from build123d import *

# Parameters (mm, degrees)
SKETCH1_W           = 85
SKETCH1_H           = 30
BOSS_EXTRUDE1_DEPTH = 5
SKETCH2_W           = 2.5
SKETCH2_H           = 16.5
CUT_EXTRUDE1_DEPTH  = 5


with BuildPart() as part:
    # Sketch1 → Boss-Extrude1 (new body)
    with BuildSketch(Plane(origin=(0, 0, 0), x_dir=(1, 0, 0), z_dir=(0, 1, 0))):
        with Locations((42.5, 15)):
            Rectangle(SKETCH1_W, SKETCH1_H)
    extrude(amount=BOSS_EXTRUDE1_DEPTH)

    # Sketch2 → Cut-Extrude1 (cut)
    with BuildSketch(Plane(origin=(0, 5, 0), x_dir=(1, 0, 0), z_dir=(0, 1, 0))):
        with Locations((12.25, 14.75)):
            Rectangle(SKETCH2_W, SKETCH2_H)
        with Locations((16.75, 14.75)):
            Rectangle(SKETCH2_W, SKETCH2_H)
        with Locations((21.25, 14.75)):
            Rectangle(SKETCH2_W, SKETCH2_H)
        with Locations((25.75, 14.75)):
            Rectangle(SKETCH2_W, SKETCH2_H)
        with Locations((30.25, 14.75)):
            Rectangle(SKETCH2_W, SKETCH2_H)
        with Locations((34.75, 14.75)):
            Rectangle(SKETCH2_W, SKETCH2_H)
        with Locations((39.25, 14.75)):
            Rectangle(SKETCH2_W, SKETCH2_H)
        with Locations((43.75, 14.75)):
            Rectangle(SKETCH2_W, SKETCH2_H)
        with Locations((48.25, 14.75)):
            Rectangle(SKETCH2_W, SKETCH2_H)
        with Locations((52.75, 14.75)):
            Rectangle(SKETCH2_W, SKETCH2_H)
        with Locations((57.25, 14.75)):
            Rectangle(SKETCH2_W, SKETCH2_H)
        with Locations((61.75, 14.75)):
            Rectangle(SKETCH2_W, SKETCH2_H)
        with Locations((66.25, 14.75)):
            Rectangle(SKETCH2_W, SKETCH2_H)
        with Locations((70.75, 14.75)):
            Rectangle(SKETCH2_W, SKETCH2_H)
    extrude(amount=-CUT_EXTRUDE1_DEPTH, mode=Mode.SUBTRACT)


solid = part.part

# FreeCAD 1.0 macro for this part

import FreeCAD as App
import Part
import Sketcher
Q = App.Units.Quantity

doc = App.newDocument("Part")
params = doc.addObject("Spreadsheet::Sheet", "Params")
for row, (alias, value) in enumerate([
    ("sketch1_width", "85 mm"),
    ("sketch1_height", "30 mm"),
    ("pad1_length", "5 mm"),
    ("sketch2_width", "2.5 mm"),
    ("sketch2_height", "16.5 mm"),
    ("pocket1_length", "5 mm"),
], start=1):
    params.set(f"A{row}", alias)
    params.set(f"B{row}", "=" + value)
    params.setAlias(f"B{row}", alias)

body = doc.addObject("PartDesign::Body", "Body")

sketch1 = body.newObject("Sketcher::SketchObject", "Sketch")
sketch1.AttachmentSupport = (doc.getObject("XZ_Plane"), [""])
sketch1.MapMode = "FlatFace"
sketch1.addGeometry(Part.LineSegment(App.Vector(0, -30, 0), App.Vector(0, 0, 0)), False)
sketch1.addGeometry(Part.LineSegment(App.Vector(0, 0, 0), App.Vector(85, 0, 0)), False)
sketch1.addGeometry(Part.LineSegment(App.Vector(85, 0, 0), App.Vector(85, -30, 0)), False)
sketch1.addGeometry(Part.LineSegment(App.Vector(85, -30, 0), App.Vector(0, -30, 0)), False)
sketch1.addConstraint(Sketcher.Constraint("Coincident", 0, 2, 1, 1))
sketch1.addConstraint(Sketcher.Constraint("Coincident", 1, 2, 2, 1))
sketch1.addConstraint(Sketcher.Constraint("Coincident", 2, 2, 3, 1))
sketch1.addConstraint(Sketcher.Constraint("Coincident", 3, 2, 0, 1))
sketch1.addConstraint(Sketcher.Constraint("Vertical", 0))
sketch1.addConstraint(Sketcher.Constraint("Horizontal", 1))
sketch1.addConstraint(Sketcher.Constraint("Vertical", 2))
sketch1.addConstraint(Sketcher.Constraint("Horizontal", 3))
sketch1.addConstraint(Sketcher.Constraint("Coincident", 0, 2, -1, 1))
sketch1.addConstraint(Sketcher.Constraint("DistanceX", 1, 1, 1, 2, Q("85 mm")))
sketch1.addConstraint(Sketcher.Constraint("DistanceY", 0, 1, 0, 2, Q("30 mm")))
sketch1.setExpression("Constraints[9]", "Params.sketch1_width")
sketch1.setExpression("Constraints[10]", "Params.sketch1_height")
pad1 = body.newObject("PartDesign::Pad", "Pad")
pad1.Profile = sketch1
pad1.setExpression("Length", "Params.pad1_length")
pad1.Reversed = True

sketch2 = body.newObject("Sketcher::SketchObject", "Sketch001")
sketch2.AttachmentSupport = (doc.getObject("XZ_Plane"), [""])
sketch2.MapMode = "FlatFace"
sketch2.AttachmentOffset = App.Placement(App.Vector(0, 0, -5), App.Rotation())
sketch2.addGeometry(Part.LineSegment(App.Vector(11, -23, 0), App.Vector(11, -6.5, 0)), False)
sketch2.addGeometry(Part.LineSegment(App.Vector(11, -6.5, 0), App.Vector(13.5, -6.5, 0)), False)
sketch2.addGeometry(Part.LineSegment(App.Vector(13.5, -6.5, 0), App.Vector(13.5, -23, 0)), False)
sketch2.addGeometry(Part.LineSegment(App.Vector(13.5, -23, 0), App.Vector(11, -23, 0)), False)
sketch2.addGeometry(Part.LineSegment(App.Vector(15.5, -23, 0), App.Vector(15.5, -6.5, 0)), False)
sketch2.addGeometry(Part.LineSegment(App.Vector(15.5, -6.5, 0), App.Vector(18, -6.5, 0)), False)
sketch2.addGeometry(Part.LineSegment(App.Vector(18, -6.5, 0), App.Vector(18, -23, 0)), False)
sketch2.addGeometry(Part.LineSegment(App.Vector(18, -23, 0), App.Vector(15.5, -23, 0)), False)
sketch2.addGeometry(Part.LineSegment(App.Vector(20, -23, 0), App.Vector(20, -6.5, 0)), False)
sketch2.addGeometry(Part.LineSegment(App.Vector(20, -6.5, 0), App.Vector(22.5, -6.5, 0)), False)
sketch2.addGeometry(Part.LineSegment(App.Vector(22.5, -6.5, 0), App.Vector(22.5, -23, 0)), False)
sketch2.addGeometry(Part.LineSegment(App.Vector(22.5, -23, 0), App.Vector(20, -23, 0)), False)
sketch2.addGeometry(Part.LineSegment(App.Vector(24.5, -23, 0), App.Vector(24.5, -6.5, 0)), False)
sketch2.addGeometry(Part.LineSegment(App.Vector(24.5, -6.5, 0), App.Vector(27, -6.5, 0)), False)
sketch2.addGeometry(Part.LineSegment(App.Vector(27, -6.5, 0), App.Vector(27, -23, 0)), False)
sketch2.addGeometry(Part.LineSegment(App.Vector(27, -23, 0), App.Vector(24.5, -23, 0)), False)
sketch2.addGeometry(Part.LineSegment(App.Vector(29, -23, 0), App.Vector(29, -6.5, 0)), False)
sketch2.addGeometry(Part.LineSegment(App.Vector(29, -6.5, 0), App.Vector(31.5, -6.5, 0)), False)
sketch2.addGeometry(Part.LineSegment(App.Vector(31.5, -6.5, 0), App.Vector(31.5, -23, 0)), False)
sketch2.addGeometry(Part.LineSegment(App.Vector(31.5, -23, 0), App.Vector(29, -23, 0)), False)
sketch2.addGeometry(Part.LineSegment(App.Vector(33.5, -23, 0), App.Vector(33.5, -6.5, 0)), False)
sketch2.addGeometry(Part.LineSegment(App.Vector(33.5, -6.5, 0), App.Vector(36, -6.5, 0)), False)
sketch2.addGeometry(Part.LineSegment(App.Vector(36, -6.5, 0), App.Vector(36, -23, 0)), False)
sketch2.addGeometry(Part.LineSegment(App.Vector(36, -23, 0), App.Vector(33.5, -23, 0)), False)
sketch2.addGeometry(Part.LineSegment(App.Vector(38, -23, 0), App.Vector(38, -6.5, 0)), False)
sketch2.addGeometry(Part.LineSegment(App.Vector(38, -6.5, 0), App.Vector(40.5, -6.5, 0)), False)
sketch2.addGeometry(Part.LineSegment(App.Vector(40.5, -6.5, 0), App.Vector(40.5, -23, 0)), False)
sketch2.addGeometry(Part.LineSegment(App.Vector(40.5, -23, 0), App.Vector(38, -23, 0)), False)
sketch2.addGeometry(Part.LineSegment(App.Vector(42.5, -23, 0), App.Vector(42.5, -6.5, 0)), False)
sketch2.addGeometry(Part.LineSegment(App.Vector(42.5, -6.5, 0), App.Vector(45, -6.5, 0)), False)
sketch2.addGeometry(Part.LineSegment(App.Vector(45, -6.5, 0), App.Vector(45, -23, 0)), False)
sketch2.addGeometry(Part.LineSegment(App.Vector(45, -23, 0), App.Vector(42.5, -23, 0)), False)
sketch2.addGeometry(Part.LineSegment(App.Vector(47, -23, 0), App.Vector(47, -6.5, 0)), False)
sketch2.addGeometry(Part.LineSegment(App.Vector(47, -6.5, 0), App.Vector(49.5, -6.5, 0)), False)
sketch2.addGeometry(Part.LineSegment(App.Vector(49.5, -6.5, 0), App.Vector(49.5, -23, 0)), False)
sketch2.addGeometry(Part.LineSegment(App.Vector(49.5, -23, 0), App.Vector(47, -23, 0)), False)
sketch2.addGeometry(Part.LineSegment(App.Vector(51.5, -23, 0), App.Vector(51.5, -6.5, 0)), False)
sketch2.addGeometry(Part.LineSegment(App.Vector(51.5, -6.5, 0), App.Vector(54, -6.5, 0)), False)
sketch2.addGeometry(Part.LineSegment(App.Vector(54, -6.5, 0), App.Vector(54, -23, 0)), False)
sketch2.addGeometry(Part.LineSegment(App.Vector(54, -23, 0), App.Vector(51.5, -23, 0)), False)
sketch2.addGeometry(Part.LineSegment(App.Vector(56, -23, 0), App.Vector(56, -6.5, 0)), False)
sketch2.addGeometry(Part.LineSegment(App.Vector(56, -6.5, 0), App.Vector(58.5, -6.5, 0)), False)
sketch2.addGeometry(Part.LineSegment(App.Vector(58.5, -6.5, 0), App.Vector(58.5, -23, 0)), False)
sketch2.addGeometry(Part.LineSegment(App.Vector(58.5, -23, 0), App.Vector(56, -23, 0)), False)
sketch2.addGeometry(Part.LineSegment(App.Vector(60.5, -23, 0), App.Vector(60.5, -6.5, 0)), False)
sketch2.addGeometry(Part.LineSegment(App.Vector(60.5, -6.5, 0), App.Vector(63, -6.5, 0)), False)
sketch2.addGeometry(Part.LineSegment(App.Vector(63, -6.5, 0), App.Vector(63, -23, 0)), False)
sketch2.addGeometry(Part.LineSegment(App.Vector(63, -23, 0), App.Vector(60.5, -23, 0)), False)
sketch2.addGeometry(Part.LineSegment(App.Vector(65, -23, 0), App.Vector(65, -6.5, 0)), False)
sketch2.addGeometry(Part.LineSegment(App.Vector(65, -6.5, 0), App.Vector(67.5, -6.5, 0)), False)
sketch2.addGeometry(Part.LineSegment(App.Vector(67.5, -6.5, 0), App.Vector(67.5, -23, 0)), False)
sketch2.addGeometry(Part.LineSegment(App.Vector(67.5, -23, 0), App.Vector(65, -23, 0)), False)
sketch2.addGeometry(Part.LineSegment(App.Vector(69.5, -23, 0), App.Vector(69.5, -6.5, 0)), False)
sketch2.addGeometry(Part.LineSegment(App.Vector(69.5, -6.5, 0), App.Vector(72, -6.5, 0)), False)
sketch2.addGeometry(Part.LineSegment(App.Vector(72, -6.5, 0), App.Vector(72, -23, 0)), False)
sketch2.addGeometry(Part.LineSegment(App.Vector(72, -23, 0), App.Vector(69.5, -23, 0)), False)
sketch2.addConstraint(Sketcher.Constraint("Coincident", 0, 2, 1, 1))
sketch2.addConstraint(Sketcher.Constraint("Coincident", 1, 2, 2, 1))
sketch2.addConstraint(Sketcher.Constraint("Coincident", 2, 2, 3, 1))
sketch2.addConstraint(Sketcher.Constraint("Coincident", 3, 2, 0, 1))
sketch2.addConstraint(Sketcher.Constraint("Coincident", 4, 2, 5, 1))
sketch2.addConstraint(Sketcher.Constraint("Coincident", 5, 2, 6, 1))
sketch2.addConstraint(Sketcher.Constraint("Coincident", 6, 2, 7, 1))
sketch2.addConstraint(Sketcher.Constraint("Coincident", 7, 2, 4, 1))
sketch2.addConstraint(Sketcher.Constraint("Coincident", 8, 2, 9, 1))
sketch2.addConstraint(Sketcher.Constraint("Coincident", 9, 2, 10, 1))
sketch2.addConstraint(Sketcher.Constraint("Coincident", 10, 2, 11, 1))
sketch2.addConstraint(Sketcher.Constraint("Coincident", 11, 2, 8, 1))
sketch2.addConstraint(Sketcher.Constraint("Coincident", 12, 2, 13, 1))
sketch2.addConstraint(Sketcher.Constraint("Coincident", 13, 2, 14, 1))
sketch2.addConstraint(Sketcher.Constraint("Coincident", 14, 2, 15, 1))
sketch2.addConstraint(Sketcher.Constraint("Coincident", 15, 2, 12, 1))
sketch2.addConstraint(Sketcher.Constraint("Coincident", 16, 2, 17, 1))
sketch2.addConstraint(Sketcher.Constraint("Coincident", 17, 2, 18, 1))
sketch2.addConstraint(Sketcher.Constraint("Coincident", 18, 2, 19, 1))
sketch2.addConstraint(Sketcher.Constraint("Coincident", 19, 2, 16, 1))
sketch2.addConstraint(Sketcher.Constraint("Coincident", 20, 2, 21, 1))
sketch2.addConstraint(Sketcher.Constraint("Coincident", 21, 2, 22, 1))
sketch2.addConstraint(Sketcher.Constraint("Coincident", 22, 2, 23, 1))
sketch2.addConstraint(Sketcher.Constraint("Coincident", 23, 2, 20, 1))
sketch2.addConstraint(Sketcher.Constraint("Coincident", 24, 2, 25, 1))
sketch2.addConstraint(Sketcher.Constraint("Coincident", 25, 2, 26, 1))
sketch2.addConstraint(Sketcher.Constraint("Coincident", 26, 2, 27, 1))
sketch2.addConstraint(Sketcher.Constraint("Coincident", 27, 2, 24, 1))
sketch2.addConstraint(Sketcher.Constraint("Coincident", 28, 2, 29, 1))
sketch2.addConstraint(Sketcher.Constraint("Coincident", 29, 2, 30, 1))
sketch2.addConstraint(Sketcher.Constraint("Coincident", 30, 2, 31, 1))
sketch2.addConstraint(Sketcher.Constraint("Coincident", 31, 2, 28, 1))
sketch2.addConstraint(Sketcher.Constraint("Coincident", 32, 2, 33, 1))
sketch2.addConstraint(Sketcher.Constraint("Coincident", 33, 2, 34, 1))
sketch2.addConstraint(Sketcher.Constraint("Coincident", 34, 2, 35, 1))
sketch2.addConstraint(Sketcher.Constraint("Coincident", 35, 2, 32, 1))
sketch2.addConstraint(Sketcher.Constraint("Coincident", 36, 2, 37, 1))
sketch2.addConstraint(Sketcher.Constraint("Coincident", 37, 2, 38, 1))
sketch2.addConstraint(Sketcher.Constraint("Coincident", 38, 2, 39, 1))
sketch2.addConstraint(Sketcher.Constraint("Coincident", 39, 2, 36, 1))
sketch2.addConstraint(Sketcher.Constraint("Coincident", 40, 2, 41, 1))
sketch2.addConstraint(Sketcher.Constraint("Coincident", 41, 2, 42, 1))
sketch2.addConstraint(Sketcher.Constraint("Coincident", 42, 2, 43, 1))
sketch2.addConstraint(Sketcher.Constraint("Coincident", 43, 2, 40, 1))
sketch2.addConstraint(Sketcher.Constraint("Coincident", 44, 2, 45, 1))
sketch2.addConstraint(Sketcher.Constraint("Coincident", 45, 2, 46, 1))
sketch2.addConstraint(Sketcher.Constraint("Coincident", 46, 2, 47, 1))
sketch2.addConstraint(Sketcher.Constraint("Coincident", 47, 2, 44, 1))
sketch2.addConstraint(Sketcher.Constraint("Coincident", 48, 2, 49, 1))
sketch2.addConstraint(Sketcher.Constraint("Coincident", 49, 2, 50, 1))
sketch2.addConstraint(Sketcher.Constraint("Coincident", 50, 2, 51, 1))
sketch2.addConstraint(Sketcher.Constraint("Coincident", 51, 2, 48, 1))
sketch2.addConstraint(Sketcher.Constraint("Coincident", 52, 2, 53, 1))
sketch2.addConstraint(Sketcher.Constraint("Coincident", 53, 2, 54, 1))
sketch2.addConstraint(Sketcher.Constraint("Coincident", 54, 2, 55, 1))
sketch2.addConstraint(Sketcher.Constraint("Coincident", 55, 2, 52, 1))
sketch2.addConstraint(Sketcher.Constraint("Vertical", 0))
sketch2.addConstraint(Sketcher.Constraint("Horizontal", 1))
sketch2.addConstraint(Sketcher.Constraint("Vertical", 2))
sketch2.addConstraint(Sketcher.Constraint("Horizontal", 3))
sketch2.addConstraint(Sketcher.Constraint("Vertical", 4))
sketch2.addConstraint(Sketcher.Constraint("Horizontal", 5))
sketch2.addConstraint(Sketcher.Constraint("Vertical", 6))
sketch2.addConstraint(Sketcher.Constraint("Horizontal", 7))
sketch2.addConstraint(Sketcher.Constraint("Vertical", 8))
sketch2.addConstraint(Sketcher.Constraint("Horizontal", 9))
sketch2.addConstraint(Sketcher.Constraint("Vertical", 10))
sketch2.addConstraint(Sketcher.Constraint("Horizontal", 11))
sketch2.addConstraint(Sketcher.Constraint("Vertical", 12))
sketch2.addConstraint(Sketcher.Constraint("Horizontal", 13))
sketch2.addConstraint(Sketcher.Constraint("Vertical", 14))
sketch2.addConstraint(Sketcher.Constraint("Horizontal", 15))
sketch2.addConstraint(Sketcher.Constraint("Vertical", 16))
sketch2.addConstraint(Sketcher.Constraint("Horizontal", 17))
sketch2.addConstraint(Sketcher.Constraint("Vertical", 18))
sketch2.addConstraint(Sketcher.Constraint("Horizontal", 19))
sketch2.addConstraint(Sketcher.Constraint("Vertical", 20))
sketch2.addConstraint(Sketcher.Constraint("Horizontal", 21))
sketch2.addConstraint(Sketcher.Constraint("Vertical", 22))
sketch2.addConstraint(Sketcher.Constraint("Horizontal", 23))
sketch2.addConstraint(Sketcher.Constraint("Vertical", 24))
sketch2.addConstraint(Sketcher.Constraint("Horizontal", 25))
sketch2.addConstraint(Sketcher.Constraint("Vertical", 26))
sketch2.addConstraint(Sketcher.Constraint("Horizontal", 27))
sketch2.addConstraint(Sketcher.Constraint("Vertical", 28))
sketch2.addConstraint(Sketcher.Constraint("Horizontal", 29))
sketch2.addConstraint(Sketcher.Constraint("Vertical", 30))
sketch2.addConstraint(Sketcher.Constraint("Horizontal", 31))
sketch2.addConstraint(Sketcher.Constraint("Vertical", 32))
sketch2.addConstraint(Sketcher.Constraint("Horizontal", 33))
sketch2.addConstraint(Sketcher.Constraint("Vertical", 34))
sketch2.addConstraint(Sketcher.Constraint("Horizontal", 35))
sketch2.addConstraint(Sketcher.Constraint("Vertical", 36))
sketch2.addConstraint(Sketcher.Constraint("Horizontal", 37))
sketch2.addConstraint(Sketcher.Constraint("Vertical", 38))
sketch2.addConstraint(Sketcher.Constraint("Horizontal", 39))
sketch2.addConstraint(Sketcher.Constraint("Vertical", 40))
sketch2.addConstraint(Sketcher.Constraint("Horizontal", 41))
sketch2.addConstraint(Sketcher.Constraint("Vertical", 42))
sketch2.addConstraint(Sketcher.Constraint("Horizontal", 43))
sketch2.addConstraint(Sketcher.Constraint("Vertical", 44))
sketch2.addConstraint(Sketcher.Constraint("Horizontal", 45))
sketch2.addConstraint(Sketcher.Constraint("Vertical", 46))
sketch2.addConstraint(Sketcher.Constraint("Horizontal", 47))
sketch2.addConstraint(Sketcher.Constraint("Vertical", 48))
sketch2.addConstraint(Sketcher.Constraint("Horizontal", 49))
sketch2.addConstraint(Sketcher.Constraint("Vertical", 50))
sketch2.addConstraint(Sketcher.Constraint("Horizontal", 51))
sketch2.addConstraint(Sketcher.Constraint("Vertical", 52))
sketch2.addConstraint(Sketcher.Constraint("Horizontal", 53))
sketch2.addConstraint(Sketcher.Constraint("Vertical", 54))
sketch2.addConstraint(Sketcher.Constraint("Horizontal", 55))
sketch2.addConstraint(Sketcher.Constraint("Horizontal", 1, 2, 4, 2))
sketch2.addConstraint(Sketcher.Constraint("Horizontal", 3, 2, 6, 2))
sketch2.addConstraint(Sketcher.Constraint("Horizontal", 5, 2, 8, 2))
sketch2.addConstraint(Sketcher.Constraint("Horizontal", 7, 2, 10, 2))
sketch2.addConstraint(Sketcher.Constraint("Horizontal", 9, 2, 12, 2))
sketch2.addConstraint(Sketcher.Constraint("Horizontal", 11, 2, 14, 2))
sketch2.addConstraint(Sketcher.Constraint("Horizontal", 13, 2, 16, 2))
sketch2.addConstraint(Sketcher.Constraint("Horizontal", 15, 2, 18, 2))
sketch2.addConstraint(Sketcher.Constraint("Horizontal", 17, 2, 20, 2))
sketch2.addConstraint(Sketcher.Constraint("Horizontal", 19, 2, 22, 2))
sketch2.addConstraint(Sketcher.Constraint("Horizontal", 21, 2, 24, 2))
sketch2.addConstraint(Sketcher.Constraint("Horizontal", 23, 2, 26, 2))
sketch2.addConstraint(Sketcher.Constraint("Horizontal", 25, 2, 28, 2))
sketch2.addConstraint(Sketcher.Constraint("Horizontal", 27, 2, 30, 2))
sketch2.addConstraint(Sketcher.Constraint("Horizontal", 29, 2, 32, 2))
sketch2.addConstraint(Sketcher.Constraint("Horizontal", 31, 2, 34, 2))
sketch2.addConstraint(Sketcher.Constraint("Horizontal", 33, 2, 36, 2))
sketch2.addConstraint(Sketcher.Constraint("Horizontal", 35, 2, 38, 2))
sketch2.addConstraint(Sketcher.Constraint("Horizontal", 37, 2, 40, 2))
sketch2.addConstraint(Sketcher.Constraint("Horizontal", 39, 2, 42, 2))
sketch2.addConstraint(Sketcher.Constraint("Horizontal", 41, 2, 44, 2))
sketch2.addConstraint(Sketcher.Constraint("Horizontal", 43, 2, 46, 2))
sketch2.addConstraint(Sketcher.Constraint("Horizontal", 45, 2, 48, 2))
sketch2.addConstraint(Sketcher.Constraint("Horizontal", 47, 2, 50, 2))
sketch2.addConstraint(Sketcher.Constraint("Horizontal", 49, 2, 52, 2))
sketch2.addConstraint(Sketcher.Constraint("Horizontal", 51, 2, 54, 2))
sketch2.addConstraint(Sketcher.Constraint("Equal", 3, 5))
sketch2.addConstraint(Sketcher.Constraint("Equal", 7, 9))
sketch2.addConstraint(Sketcher.Constraint("Equal", 11, 13))
sketch2.addConstraint(Sketcher.Constraint("Equal", 15, 17))
sketch2.addConstraint(Sketcher.Constraint("Equal", 19, 21))
sketch2.addConstraint(Sketcher.Constraint("Equal", 23, 25))
sketch2.addConstraint(Sketcher.Constraint("Equal", 27, 29))
sketch2.addConstraint(Sketcher.Constraint("Equal", 31, 33))
sketch2.addConstraint(Sketcher.Constraint("Equal", 35, 37))
sketch2.addConstraint(Sketcher.Constraint("Equal", 39, 41))
sketch2.addConstraint(Sketcher.Constraint("Equal", 43, 45))
sketch2.addConstraint(Sketcher.Constraint("Equal", 47, 49))
sketch2.addConstraint(Sketcher.Constraint("Equal", 51, 53))
sketch2.addConstraint(Sketcher.Constraint("DistanceX", 1, 1, 1, 2, Q("2.5 mm")))
sketch2.addConstraint(Sketcher.Constraint("DistanceY", 0, 1, 0, 2, Q("16.5 mm")))
sketch2.addConstraint(Sketcher.Constraint("DistanceX", -1, 1, 0, 2, Q("11 mm")))
sketch2.addConstraint(Sketcher.Constraint("DistanceY", 2, 2, -1, 1, Q("23 mm")))
sketch2.addConstraint(Sketcher.Constraint("DistanceX", -1, 1, 5, 2, Q("18 mm")))
sketch2.addConstraint(Sketcher.Constraint("DistanceX", -1, 1, 8, 2, Q("20 mm")))
sketch2.addConstraint(Sketcher.Constraint("DistanceX", -1, 1, 13, 2, Q("27 mm")))
sketch2.addConstraint(Sketcher.Constraint("DistanceX", -1, 1, 16, 2, Q("29 mm")))
sketch2.addConstraint(Sketcher.Constraint("DistanceX", -1, 1, 21, 2, Q("36 mm")))
sketch2.addConstraint(Sketcher.Constraint("DistanceX", -1, 1, 24, 2, Q("38 mm")))
sketch2.addConstraint(Sketcher.Constraint("DistanceX", -1, 1, 29, 2, Q("45 mm")))
sketch2.addConstraint(Sketcher.Constraint("DistanceX", -1, 1, 32, 2, Q("47 mm")))
sketch2.addConstraint(Sketcher.Constraint("DistanceX", -1, 1, 37, 2, Q("54 mm")))
sketch2.addConstraint(Sketcher.Constraint("DistanceX", -1, 1, 40, 2, Q("56 mm")))
sketch2.addConstraint(Sketcher.Constraint("DistanceX", -1, 1, 45, 2, Q("63 mm")))
sketch2.addConstraint(Sketcher.Constraint("DistanceX", -1, 1, 48, 2, Q("65 mm")))
sketch2.addConstraint(Sketcher.Constraint("DistanceX", -1, 1, 53, 2, Q("72 mm")))
sketch2.setExpression("Constraints[151]", "Params.sketch2_width")
sketch2.setExpression("Constraints[152]", "Params.sketch2_height")
pocket1 = body.newObject("PartDesign::Pocket", "Pocket")
pocket1.Profile = sketch2
pocket1.setExpression("Length", "Params.pocket1_length")
pocket1.Reversed = True

doc.recompute()
